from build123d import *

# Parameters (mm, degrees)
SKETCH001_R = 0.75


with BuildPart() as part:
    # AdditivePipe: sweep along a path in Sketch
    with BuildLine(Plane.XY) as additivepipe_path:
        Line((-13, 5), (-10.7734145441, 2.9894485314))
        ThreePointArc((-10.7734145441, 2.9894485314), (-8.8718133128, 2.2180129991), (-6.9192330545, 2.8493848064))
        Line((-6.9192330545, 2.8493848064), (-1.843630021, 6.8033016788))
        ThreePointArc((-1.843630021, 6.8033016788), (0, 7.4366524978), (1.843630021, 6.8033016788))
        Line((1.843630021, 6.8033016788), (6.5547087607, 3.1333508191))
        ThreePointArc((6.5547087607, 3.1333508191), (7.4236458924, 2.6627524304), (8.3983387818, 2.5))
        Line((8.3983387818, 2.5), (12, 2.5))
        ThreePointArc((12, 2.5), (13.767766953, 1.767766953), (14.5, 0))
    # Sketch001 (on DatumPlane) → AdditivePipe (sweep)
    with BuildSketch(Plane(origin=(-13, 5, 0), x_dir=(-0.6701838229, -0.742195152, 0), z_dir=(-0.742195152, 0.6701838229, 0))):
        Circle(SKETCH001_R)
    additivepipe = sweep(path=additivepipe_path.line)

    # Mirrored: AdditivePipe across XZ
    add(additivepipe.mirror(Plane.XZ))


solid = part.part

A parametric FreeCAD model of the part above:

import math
import FreeCAD as App
import Part
import Sketcher
from FreeCAD import Vector

doc = App.newDocument("Part")
body = doc.addObject("PartDesign::Body", "Body")

# Sketch on an angled plane
sketch1 = body.newObject("Sketcher::SketchObject", "Sketch")
sketch1.Placement = App.Placement(Vector(-13, 5, 0), App.Rotation(Vector(-0.670183823, -0.742195152, 0), Vector(0, 0, 1), Vector(-0.742195152, 0.670183823, 0), "ZXY"))
sketch1.addGeometry(Part.Circle(Vector(0, 0, 0), Vector(0, 0, 1), 0.8), False)
sketch1.addConstraint([
    Sketcher.Constraint("Coincident", 0, 3, -1, 1),
    Sketcher.Constraint("Diameter", 0, 1.5),
])

# Sketch on XY plane
sketch2 = body.newObject("Sketcher::SketchObject", "Sketch001")
sketch2.AttachmentSupport = (doc.getObject("XY_Plane"), [""])
sketch2.MapMode = "FlatFace"
sketch2.addGeometry([
    Part.LineSegment(Vector(-13, 5, 0), Vector(-10.8, 3, 0)),  # 0
    Part.ArcOfCircle(Part.Circle(Vector(-8.8, 5.2, 0), Vector(0, 0, 1), 3), math.radians(-132), math.radians(-52)),  # 1
    Part.LineSegment(Vector(-6.9, 2.8, 0), Vector(-1.8, 6.8, 0)),  # 2
    Part.ArcOfCircle(Part.Circle(Vector(0, 4.4, 0), Vector(0, 0, 1), 3), math.radians(52), math.radians(128)),  # 3
    Part.LineSegment(Vector(1.8, 6.8, 0), Vector(6.6, 3.1, 0)),  # 4
    Part.ArcOfCircle(Part.Circle(Vector(8.4, 5.5, 0), Vector(0, 0, 1), 3), math.radians(-128), math.radians(-90)),  # 5
    Part.LineSegment(Vector(8.4, 2.5, 0), Vector(12, 2.5, 0)),  # 6
    Part.ArcOfCircle(Part.Circle(Vector(12, 0, 0), Vector(0, 0, 1), 2.5), math.radians(0), math.radians(90)),  # 7
], False)
sketch2.addConstraint([
    Sketcher.Constraint("Tangent", 0, 2, 1, 1),
    Sketcher.Constraint("Tangent", 1, 2, 2, 1),
    Sketcher.Constraint("Tangent", 2, 2, 3, 2),
    Sketcher.Constraint("Tangent", 3, 1, 4, 1),
    Sketcher.Constraint("Tangent", 4, 2, 5, 1),
    Sketcher.Constraint("Tangent", 5, 2, 6, 1),
    Sketcher.Constraint("Tangent", 6, 2, 7, 2),
    Sketcher.Constraint("Horizontal", 6),
    Sketcher.Constraint("Equal", 1, 3),
    Sketcher.Constraint("Equal", 3, 5),
    Sketcher.Constraint("Symmetric", 2, 2, 3, 1, -2),
    Sketcher.Constraint("PointOnObject", 7, 3, -1),
    Sketcher.Constraint("PointOnObject", 7, 1, -1),
    Sketcher.Constraint("Radius", 1, 3.0),
    Sketcher.Constraint("Radius", 7, 2.5),
    Sketcher.Constraint("Distance", 0, 3.0),
    Sketcher.Constraint("DistanceX", -1, 1, 7, 3, 12.0),
    Sketcher.Constraint("DistanceX", 0, 1, -1, 1, 13.0),
    Sketcher.Constraint("DistanceY", -1, 1, 0, 1, 5.0),
    Sketcher.Constraint("DistanceX", 6, 1, 6, 2, 3.601661),
    Sketcher.Constraint("DistanceY", -1, 1, 2, 2, 6.803302),
])
doc.recompute()

additivepipe = body.newObject("PartDesign::AdditivePipe", "AdditivePipe")
additivepipe.Profile = sketch1
additivepipe.Spine = (sketch2, ["Edge1", "Edge2", "Edge3", "Edge4", "Edge5", "Edge6", "Edge7", "Edge8"])
doc.recompute()

mirrored = body.newObject("PartDesign::Mirrored", "Mirrored")
mirrored.Originals = [additivepipe]
mirrored.MirrorPlane = (doc.getObject("XZ_Plane"), [""])
body.Tip = mirrored

doc.recompute()
